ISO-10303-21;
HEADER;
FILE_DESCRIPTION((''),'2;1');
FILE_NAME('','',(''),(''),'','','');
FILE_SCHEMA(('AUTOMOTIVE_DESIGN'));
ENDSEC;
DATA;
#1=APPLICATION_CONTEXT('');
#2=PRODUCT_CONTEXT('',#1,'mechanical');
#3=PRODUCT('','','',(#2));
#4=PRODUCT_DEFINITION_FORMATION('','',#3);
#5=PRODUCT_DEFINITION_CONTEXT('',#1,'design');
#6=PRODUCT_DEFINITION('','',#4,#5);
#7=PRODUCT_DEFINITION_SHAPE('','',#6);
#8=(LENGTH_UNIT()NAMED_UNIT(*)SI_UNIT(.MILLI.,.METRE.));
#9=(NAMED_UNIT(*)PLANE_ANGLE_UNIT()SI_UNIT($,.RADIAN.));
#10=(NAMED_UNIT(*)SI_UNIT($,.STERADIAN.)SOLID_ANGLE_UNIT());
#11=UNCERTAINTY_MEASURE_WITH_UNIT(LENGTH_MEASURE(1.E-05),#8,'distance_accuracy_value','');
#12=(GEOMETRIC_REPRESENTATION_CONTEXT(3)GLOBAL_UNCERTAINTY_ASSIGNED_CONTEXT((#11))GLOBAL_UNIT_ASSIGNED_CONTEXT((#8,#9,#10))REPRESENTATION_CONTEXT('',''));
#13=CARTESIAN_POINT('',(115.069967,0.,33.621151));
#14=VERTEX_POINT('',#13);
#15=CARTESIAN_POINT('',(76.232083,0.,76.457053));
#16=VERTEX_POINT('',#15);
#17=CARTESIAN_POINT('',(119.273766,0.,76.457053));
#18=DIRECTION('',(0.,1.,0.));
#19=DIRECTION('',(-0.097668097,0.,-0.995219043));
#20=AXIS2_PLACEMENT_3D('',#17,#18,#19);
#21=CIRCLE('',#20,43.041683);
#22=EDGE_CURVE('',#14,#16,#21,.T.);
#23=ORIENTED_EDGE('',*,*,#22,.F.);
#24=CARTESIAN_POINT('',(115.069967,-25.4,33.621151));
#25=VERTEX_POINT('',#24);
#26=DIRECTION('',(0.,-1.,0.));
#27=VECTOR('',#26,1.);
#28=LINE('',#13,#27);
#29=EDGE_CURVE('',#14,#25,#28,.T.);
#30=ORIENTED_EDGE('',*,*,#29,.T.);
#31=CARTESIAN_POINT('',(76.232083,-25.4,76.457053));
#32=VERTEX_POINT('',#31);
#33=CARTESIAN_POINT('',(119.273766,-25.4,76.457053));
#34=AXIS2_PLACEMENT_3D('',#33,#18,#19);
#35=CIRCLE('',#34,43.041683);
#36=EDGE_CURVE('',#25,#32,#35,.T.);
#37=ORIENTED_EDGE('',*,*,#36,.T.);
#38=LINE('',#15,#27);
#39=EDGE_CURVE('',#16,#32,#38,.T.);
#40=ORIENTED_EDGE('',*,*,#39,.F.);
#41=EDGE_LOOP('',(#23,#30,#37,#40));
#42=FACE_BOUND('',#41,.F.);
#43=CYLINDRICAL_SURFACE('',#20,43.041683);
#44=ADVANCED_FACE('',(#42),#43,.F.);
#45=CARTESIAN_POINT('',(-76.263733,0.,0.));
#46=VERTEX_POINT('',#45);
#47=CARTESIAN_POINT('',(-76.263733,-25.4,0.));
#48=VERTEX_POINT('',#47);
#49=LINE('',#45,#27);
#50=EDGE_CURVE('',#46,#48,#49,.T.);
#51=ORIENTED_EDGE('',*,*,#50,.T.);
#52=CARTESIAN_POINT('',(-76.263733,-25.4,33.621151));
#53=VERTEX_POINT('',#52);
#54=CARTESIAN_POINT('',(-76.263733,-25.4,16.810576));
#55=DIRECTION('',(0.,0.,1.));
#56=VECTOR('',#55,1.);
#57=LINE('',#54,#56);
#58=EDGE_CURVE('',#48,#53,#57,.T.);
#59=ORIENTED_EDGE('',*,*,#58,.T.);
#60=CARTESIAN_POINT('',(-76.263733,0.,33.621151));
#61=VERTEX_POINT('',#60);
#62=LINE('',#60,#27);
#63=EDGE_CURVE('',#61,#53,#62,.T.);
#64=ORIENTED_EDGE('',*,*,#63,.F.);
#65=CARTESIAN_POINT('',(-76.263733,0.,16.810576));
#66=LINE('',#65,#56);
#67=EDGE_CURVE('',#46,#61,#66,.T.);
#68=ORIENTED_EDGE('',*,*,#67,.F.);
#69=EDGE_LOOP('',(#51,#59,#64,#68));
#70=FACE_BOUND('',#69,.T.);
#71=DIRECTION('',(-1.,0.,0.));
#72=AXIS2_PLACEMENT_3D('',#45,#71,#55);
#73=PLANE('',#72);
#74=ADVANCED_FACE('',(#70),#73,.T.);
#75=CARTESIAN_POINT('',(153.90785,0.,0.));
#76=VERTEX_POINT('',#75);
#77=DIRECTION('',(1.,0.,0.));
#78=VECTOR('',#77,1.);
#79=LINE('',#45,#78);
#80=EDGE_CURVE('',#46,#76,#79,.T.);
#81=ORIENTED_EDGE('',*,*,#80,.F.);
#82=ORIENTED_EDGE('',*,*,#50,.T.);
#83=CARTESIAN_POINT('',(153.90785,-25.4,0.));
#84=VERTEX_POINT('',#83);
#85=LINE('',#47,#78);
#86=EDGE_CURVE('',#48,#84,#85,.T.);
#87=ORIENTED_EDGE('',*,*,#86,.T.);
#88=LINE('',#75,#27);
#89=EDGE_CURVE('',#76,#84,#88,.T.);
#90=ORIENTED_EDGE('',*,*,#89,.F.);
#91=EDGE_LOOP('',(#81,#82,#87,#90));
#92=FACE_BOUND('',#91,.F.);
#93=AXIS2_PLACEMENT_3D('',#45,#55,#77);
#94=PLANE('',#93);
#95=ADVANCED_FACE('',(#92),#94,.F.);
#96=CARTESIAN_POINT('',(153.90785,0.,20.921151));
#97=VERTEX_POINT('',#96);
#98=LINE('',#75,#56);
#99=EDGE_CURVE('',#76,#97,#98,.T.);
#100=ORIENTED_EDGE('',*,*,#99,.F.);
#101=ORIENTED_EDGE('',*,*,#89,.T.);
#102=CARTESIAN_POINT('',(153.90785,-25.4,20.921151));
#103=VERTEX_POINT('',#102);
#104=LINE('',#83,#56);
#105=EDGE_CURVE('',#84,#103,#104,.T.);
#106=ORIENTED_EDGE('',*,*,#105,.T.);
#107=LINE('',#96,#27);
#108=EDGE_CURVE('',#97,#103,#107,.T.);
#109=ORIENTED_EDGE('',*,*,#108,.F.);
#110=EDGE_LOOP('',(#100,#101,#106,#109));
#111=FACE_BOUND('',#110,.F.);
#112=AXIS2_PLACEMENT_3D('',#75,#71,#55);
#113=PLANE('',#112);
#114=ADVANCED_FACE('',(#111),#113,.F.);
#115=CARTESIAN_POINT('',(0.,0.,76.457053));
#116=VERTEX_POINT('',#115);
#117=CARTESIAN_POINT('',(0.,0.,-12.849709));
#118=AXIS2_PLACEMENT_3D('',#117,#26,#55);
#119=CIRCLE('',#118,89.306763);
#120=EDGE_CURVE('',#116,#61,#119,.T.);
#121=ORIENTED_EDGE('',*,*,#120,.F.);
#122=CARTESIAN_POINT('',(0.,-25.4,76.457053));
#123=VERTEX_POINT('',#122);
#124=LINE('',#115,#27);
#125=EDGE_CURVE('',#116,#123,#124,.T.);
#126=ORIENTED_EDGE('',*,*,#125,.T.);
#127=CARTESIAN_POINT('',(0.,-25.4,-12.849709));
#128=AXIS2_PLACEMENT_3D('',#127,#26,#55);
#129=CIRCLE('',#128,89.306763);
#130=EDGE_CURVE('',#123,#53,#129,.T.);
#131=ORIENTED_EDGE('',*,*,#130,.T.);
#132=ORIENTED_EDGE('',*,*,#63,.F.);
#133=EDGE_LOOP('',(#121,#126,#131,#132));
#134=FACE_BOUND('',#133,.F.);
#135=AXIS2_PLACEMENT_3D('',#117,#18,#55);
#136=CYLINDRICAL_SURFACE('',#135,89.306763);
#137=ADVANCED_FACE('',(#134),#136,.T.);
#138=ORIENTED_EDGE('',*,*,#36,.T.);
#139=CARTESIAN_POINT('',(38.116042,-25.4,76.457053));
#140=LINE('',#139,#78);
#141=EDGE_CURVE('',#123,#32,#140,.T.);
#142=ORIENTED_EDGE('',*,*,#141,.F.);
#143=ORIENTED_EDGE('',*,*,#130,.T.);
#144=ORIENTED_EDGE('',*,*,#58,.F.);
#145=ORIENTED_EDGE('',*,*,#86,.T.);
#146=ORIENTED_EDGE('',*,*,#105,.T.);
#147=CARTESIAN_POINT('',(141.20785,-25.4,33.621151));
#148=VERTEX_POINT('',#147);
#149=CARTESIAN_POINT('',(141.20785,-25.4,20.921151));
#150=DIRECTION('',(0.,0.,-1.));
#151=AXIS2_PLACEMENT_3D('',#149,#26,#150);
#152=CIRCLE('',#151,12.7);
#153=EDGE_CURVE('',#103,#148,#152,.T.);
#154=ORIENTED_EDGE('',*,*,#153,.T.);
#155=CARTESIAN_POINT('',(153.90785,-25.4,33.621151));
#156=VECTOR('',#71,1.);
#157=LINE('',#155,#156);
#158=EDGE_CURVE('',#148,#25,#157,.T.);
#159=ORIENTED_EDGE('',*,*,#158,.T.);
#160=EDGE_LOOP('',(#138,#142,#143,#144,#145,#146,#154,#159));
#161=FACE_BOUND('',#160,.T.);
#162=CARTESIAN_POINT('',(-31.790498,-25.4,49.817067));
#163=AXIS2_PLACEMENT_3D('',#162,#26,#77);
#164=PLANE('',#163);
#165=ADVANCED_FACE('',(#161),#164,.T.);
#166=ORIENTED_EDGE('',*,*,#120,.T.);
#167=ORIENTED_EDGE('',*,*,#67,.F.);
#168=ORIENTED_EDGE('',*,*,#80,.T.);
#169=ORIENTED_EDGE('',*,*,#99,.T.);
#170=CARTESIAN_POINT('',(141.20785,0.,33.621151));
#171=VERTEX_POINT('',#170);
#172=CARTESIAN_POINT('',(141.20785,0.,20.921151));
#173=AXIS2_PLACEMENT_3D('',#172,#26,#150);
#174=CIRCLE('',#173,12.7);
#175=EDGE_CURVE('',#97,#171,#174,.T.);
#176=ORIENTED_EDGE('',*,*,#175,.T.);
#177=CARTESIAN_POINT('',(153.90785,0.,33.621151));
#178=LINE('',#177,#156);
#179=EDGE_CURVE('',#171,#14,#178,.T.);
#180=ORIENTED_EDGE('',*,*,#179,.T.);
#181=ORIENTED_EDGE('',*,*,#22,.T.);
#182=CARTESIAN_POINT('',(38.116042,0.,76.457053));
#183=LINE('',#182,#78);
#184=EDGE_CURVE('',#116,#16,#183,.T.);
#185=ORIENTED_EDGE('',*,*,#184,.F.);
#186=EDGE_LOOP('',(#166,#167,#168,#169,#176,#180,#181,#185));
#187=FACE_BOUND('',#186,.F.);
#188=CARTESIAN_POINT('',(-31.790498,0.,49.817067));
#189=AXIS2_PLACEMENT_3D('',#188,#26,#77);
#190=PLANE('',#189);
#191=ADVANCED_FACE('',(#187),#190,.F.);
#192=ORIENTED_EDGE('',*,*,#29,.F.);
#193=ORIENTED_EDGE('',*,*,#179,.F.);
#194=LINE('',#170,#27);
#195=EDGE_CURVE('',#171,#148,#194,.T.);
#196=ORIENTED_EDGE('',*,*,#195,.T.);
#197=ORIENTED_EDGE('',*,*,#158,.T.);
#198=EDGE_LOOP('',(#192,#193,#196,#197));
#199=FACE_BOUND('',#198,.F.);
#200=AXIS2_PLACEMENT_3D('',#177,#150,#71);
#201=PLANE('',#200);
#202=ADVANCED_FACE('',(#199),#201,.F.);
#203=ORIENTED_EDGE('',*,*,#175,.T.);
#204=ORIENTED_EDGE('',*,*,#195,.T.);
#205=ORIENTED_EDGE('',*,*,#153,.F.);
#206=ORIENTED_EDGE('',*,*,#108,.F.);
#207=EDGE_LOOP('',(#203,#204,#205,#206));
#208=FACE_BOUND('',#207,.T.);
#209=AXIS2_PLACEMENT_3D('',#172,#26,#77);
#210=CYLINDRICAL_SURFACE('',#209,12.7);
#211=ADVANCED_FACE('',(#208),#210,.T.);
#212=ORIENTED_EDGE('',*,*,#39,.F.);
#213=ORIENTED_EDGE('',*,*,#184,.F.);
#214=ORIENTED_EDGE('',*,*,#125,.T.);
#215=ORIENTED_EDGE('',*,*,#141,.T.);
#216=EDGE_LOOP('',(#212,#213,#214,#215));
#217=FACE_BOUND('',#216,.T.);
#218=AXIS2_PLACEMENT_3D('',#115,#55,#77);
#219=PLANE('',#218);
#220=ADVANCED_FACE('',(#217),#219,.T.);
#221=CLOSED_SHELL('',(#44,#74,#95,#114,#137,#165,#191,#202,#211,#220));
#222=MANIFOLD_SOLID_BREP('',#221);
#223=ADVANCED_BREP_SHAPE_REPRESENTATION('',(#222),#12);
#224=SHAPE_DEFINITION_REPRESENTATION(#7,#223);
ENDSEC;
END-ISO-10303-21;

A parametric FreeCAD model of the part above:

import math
import FreeCAD as App
import Part
import Sketcher

V = App.Vector
Q = App.Units.Quantity


def edges_at(feature, points):
    """Names of the edges that pass closest to the given points."""
    edges = feature.Shape.Edges
    near = lambda p: min(range(len(edges)), key=lambda i: edges[i].distToShape(Part.Vertex(*p))[0])
    return sorted({f"Edge{near(p) + 1}" for p in points})

doc = App.newDocument("Part")
body = doc.addObject("PartDesign::Body", "Body")

# Sketch on XZ plane
sketch1 = doc.addObject("Sketcher::SketchObject", "Sketch")
body.addObject(sketch1)
sketch1.AttachmentSupport = (doc.XZ_Plane, [""])
sketch1.MapMode = "FlatFace"
sketch1.addGeometry(Part.ArcOfCircle(Part.Circle(V(0, -12.849709, 0), V(0, 0, 1), 89.306763), math.radians(90), math.radians(148.644203)), False)
sketch1.addGeometry(Part.LineSegment(V(-76.263733, 33.621151, 0), V(-76.263733, 0, 0)), False)
sketch1.addGeometry(Part.LineSegment(V(-76.263733, 0, 0), V(153.90785, 0, 0)), False)
sketch1.addGeometry(Part.LineSegment(V(153.90785, 0, 0), V(153.90785, 33.621151, 0)), False)
sketch1.addGeometry(Part.LineSegment(V(153.90785, 33.621151, 0), V(115.069967, 33.621151, 0)), False)
sketch1.addGeometry(Part.ArcOfCircle(Part.Circle(V(119.273766, 76.457053, 0), V(0, 0, 1), 43.041683), math.radians(180), math.radians(264.395095)), False)
sketch1.addGeometry(Part.LineSegment(V(76.232083, 76.457053, 0), V(0, 76.457053, 0)), False)
sketch1.addConstraint(Sketcher.Constraint("Coincident", 0, 2, 1, 1))
sketch1.addConstraint(Sketcher.Constraint("Coincident", 1, 2, 2, 1))
sketch1.addConstraint(Sketcher.Constraint("Coincident", 2, 2, 3, 1))
sketch1.addConstraint(Sketcher.Constraint("Coincident", 3, 2, 4, 1))
sketch1.addConstraint(Sketcher.Constraint("Coincident", 4, 2, 5, 2))
sketch1.addConstraint(Sketcher.Constraint("Coincident", 5, 1, 6, 1))
sketch1.addConstraint(Sketcher.Constraint("Tangent", 6, 2, 0, 1))
sketch1.addConstraint(Sketcher.Constraint("Vertical", 1))
sketch1.addConstraint(Sketcher.Constraint("Horizontal", 2))
sketch1.addConstraint(Sketcher.Constraint("Vertical", 3))
sketch1.addConstraint(Sketcher.Constraint("Horizontal", 4))
sketch1.addConstraint(Sketcher.Constraint("Horizontal", 6))
sketch1.addConstraint(Sketcher.Constraint("PointOnObject", 0, 3, -2))
sketch1.addConstraint(Sketcher.Constraint("PointOnObject", 1, 2, -1))
sketch1.addConstraint(Sketcher.Constraint("Horizontal", 0, 2, 3, 2))
sketch1.addConstraint(Sketcher.Constraint("Radius", 0, Q("89.306763 mm")))
sketch1.addConstraint(Sketcher.Constraint("Radius", 5, Q("43.041683 mm")))
sketch1.addConstraint(Sketcher.Constraint("DistanceY", 1, 2, 1, 1, Q("33.621151 mm")))
sketch1.addConstraint(Sketcher.Constraint("DistanceX", 0, 2, 5, 3, Q("195.537499 mm")))
sketch1.addConstraint(Sketcher.Constraint("DistanceX", 4, 2, 5, 3, Q("4.203799 mm")))
sketch1.addConstraint(Sketcher.Constraint("DistanceX", 2, 1, 2, 2, Q("230.171584 mm")))
sketch1.addConstraint(Sketcher.Constraint("DistanceX", 6, 2, 6, 1, Q("76.232083 mm")))
pad1 = doc.addObject("PartDesign::Pad", "Pad")
body.addObject(pad1)
pad1.Profile = sketch1
pad1.Length = Q("1 in")
doc.recompute()

fillet = doc.addObject("PartDesign::Fillet", "Fillet")
body.addObject(fillet)
fillet.Base = (pad1, edges_at(pad1, [(153.908, -12.7, 33.621)]))
fillet.Radius = Q("0.5 in")

doc.recompute()
